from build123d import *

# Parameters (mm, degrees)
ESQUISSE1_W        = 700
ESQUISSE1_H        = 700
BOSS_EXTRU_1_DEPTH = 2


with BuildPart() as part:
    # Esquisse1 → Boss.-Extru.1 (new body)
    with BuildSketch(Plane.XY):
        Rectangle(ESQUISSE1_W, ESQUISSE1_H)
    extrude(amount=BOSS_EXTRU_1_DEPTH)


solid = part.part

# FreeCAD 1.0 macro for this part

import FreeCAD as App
import Part
import Sketcher
from FreeCAD import Vector

doc = App.newDocument("Part")
body = doc.addObject("PartDesign::Body", "Body")

sketch1 = body.newObject("Sketcher::SketchObject", "Sketch")
sketch1.AttachmentSupport = (doc.getObject("XY_Plane"), [""])
sketch1.MapMode = "FlatFace"
sketch1.addGeometry([
    Part.LineSegment(Vector(-350, 350, 0), Vector(-350, -350, 0)),
    Part.LineSegment(Vector(-350, -350, 0), Vector(350, -350, 0)),
    Part.LineSegment(Vector(350, -350, 0), Vector(350, 350, 0)),
    Part.LineSegment(Vector(350, 350, 0), Vector(-350, 350, 0)),
], False)
sketch1.addConstraint([
    Sketcher.Constraint("Coincident", 0, 2, 1, 1),
    Sketcher.Constraint("Coincident", 1, 2, 2, 1),
    Sketcher.Constraint("Coincident", 2, 2, 3, 1),
    Sketcher.Constraint("Coincident", 3, 2, 0, 1),
    Sketcher.Constraint("Vertical", 0),
    Sketcher.Constraint("Horizontal", 1),
    Sketcher.Constraint("Vertical", 2),
    Sketcher.Constraint("Horizontal", 3),
    Sketcher.Constraint("Symmetric", 0, 2, 2, 2, -1, 1),
    Sketcher.Constraint("Equal", 3, 0),
    Sketcher.Constraint("DistanceX", 1, 1, 1, 2, 700.0),
])
pad1 = body.newObject("PartDesign::Pad", "Pad")
pad1.Profile = sketch1
pad1.Length = 2

doc.recompute()
